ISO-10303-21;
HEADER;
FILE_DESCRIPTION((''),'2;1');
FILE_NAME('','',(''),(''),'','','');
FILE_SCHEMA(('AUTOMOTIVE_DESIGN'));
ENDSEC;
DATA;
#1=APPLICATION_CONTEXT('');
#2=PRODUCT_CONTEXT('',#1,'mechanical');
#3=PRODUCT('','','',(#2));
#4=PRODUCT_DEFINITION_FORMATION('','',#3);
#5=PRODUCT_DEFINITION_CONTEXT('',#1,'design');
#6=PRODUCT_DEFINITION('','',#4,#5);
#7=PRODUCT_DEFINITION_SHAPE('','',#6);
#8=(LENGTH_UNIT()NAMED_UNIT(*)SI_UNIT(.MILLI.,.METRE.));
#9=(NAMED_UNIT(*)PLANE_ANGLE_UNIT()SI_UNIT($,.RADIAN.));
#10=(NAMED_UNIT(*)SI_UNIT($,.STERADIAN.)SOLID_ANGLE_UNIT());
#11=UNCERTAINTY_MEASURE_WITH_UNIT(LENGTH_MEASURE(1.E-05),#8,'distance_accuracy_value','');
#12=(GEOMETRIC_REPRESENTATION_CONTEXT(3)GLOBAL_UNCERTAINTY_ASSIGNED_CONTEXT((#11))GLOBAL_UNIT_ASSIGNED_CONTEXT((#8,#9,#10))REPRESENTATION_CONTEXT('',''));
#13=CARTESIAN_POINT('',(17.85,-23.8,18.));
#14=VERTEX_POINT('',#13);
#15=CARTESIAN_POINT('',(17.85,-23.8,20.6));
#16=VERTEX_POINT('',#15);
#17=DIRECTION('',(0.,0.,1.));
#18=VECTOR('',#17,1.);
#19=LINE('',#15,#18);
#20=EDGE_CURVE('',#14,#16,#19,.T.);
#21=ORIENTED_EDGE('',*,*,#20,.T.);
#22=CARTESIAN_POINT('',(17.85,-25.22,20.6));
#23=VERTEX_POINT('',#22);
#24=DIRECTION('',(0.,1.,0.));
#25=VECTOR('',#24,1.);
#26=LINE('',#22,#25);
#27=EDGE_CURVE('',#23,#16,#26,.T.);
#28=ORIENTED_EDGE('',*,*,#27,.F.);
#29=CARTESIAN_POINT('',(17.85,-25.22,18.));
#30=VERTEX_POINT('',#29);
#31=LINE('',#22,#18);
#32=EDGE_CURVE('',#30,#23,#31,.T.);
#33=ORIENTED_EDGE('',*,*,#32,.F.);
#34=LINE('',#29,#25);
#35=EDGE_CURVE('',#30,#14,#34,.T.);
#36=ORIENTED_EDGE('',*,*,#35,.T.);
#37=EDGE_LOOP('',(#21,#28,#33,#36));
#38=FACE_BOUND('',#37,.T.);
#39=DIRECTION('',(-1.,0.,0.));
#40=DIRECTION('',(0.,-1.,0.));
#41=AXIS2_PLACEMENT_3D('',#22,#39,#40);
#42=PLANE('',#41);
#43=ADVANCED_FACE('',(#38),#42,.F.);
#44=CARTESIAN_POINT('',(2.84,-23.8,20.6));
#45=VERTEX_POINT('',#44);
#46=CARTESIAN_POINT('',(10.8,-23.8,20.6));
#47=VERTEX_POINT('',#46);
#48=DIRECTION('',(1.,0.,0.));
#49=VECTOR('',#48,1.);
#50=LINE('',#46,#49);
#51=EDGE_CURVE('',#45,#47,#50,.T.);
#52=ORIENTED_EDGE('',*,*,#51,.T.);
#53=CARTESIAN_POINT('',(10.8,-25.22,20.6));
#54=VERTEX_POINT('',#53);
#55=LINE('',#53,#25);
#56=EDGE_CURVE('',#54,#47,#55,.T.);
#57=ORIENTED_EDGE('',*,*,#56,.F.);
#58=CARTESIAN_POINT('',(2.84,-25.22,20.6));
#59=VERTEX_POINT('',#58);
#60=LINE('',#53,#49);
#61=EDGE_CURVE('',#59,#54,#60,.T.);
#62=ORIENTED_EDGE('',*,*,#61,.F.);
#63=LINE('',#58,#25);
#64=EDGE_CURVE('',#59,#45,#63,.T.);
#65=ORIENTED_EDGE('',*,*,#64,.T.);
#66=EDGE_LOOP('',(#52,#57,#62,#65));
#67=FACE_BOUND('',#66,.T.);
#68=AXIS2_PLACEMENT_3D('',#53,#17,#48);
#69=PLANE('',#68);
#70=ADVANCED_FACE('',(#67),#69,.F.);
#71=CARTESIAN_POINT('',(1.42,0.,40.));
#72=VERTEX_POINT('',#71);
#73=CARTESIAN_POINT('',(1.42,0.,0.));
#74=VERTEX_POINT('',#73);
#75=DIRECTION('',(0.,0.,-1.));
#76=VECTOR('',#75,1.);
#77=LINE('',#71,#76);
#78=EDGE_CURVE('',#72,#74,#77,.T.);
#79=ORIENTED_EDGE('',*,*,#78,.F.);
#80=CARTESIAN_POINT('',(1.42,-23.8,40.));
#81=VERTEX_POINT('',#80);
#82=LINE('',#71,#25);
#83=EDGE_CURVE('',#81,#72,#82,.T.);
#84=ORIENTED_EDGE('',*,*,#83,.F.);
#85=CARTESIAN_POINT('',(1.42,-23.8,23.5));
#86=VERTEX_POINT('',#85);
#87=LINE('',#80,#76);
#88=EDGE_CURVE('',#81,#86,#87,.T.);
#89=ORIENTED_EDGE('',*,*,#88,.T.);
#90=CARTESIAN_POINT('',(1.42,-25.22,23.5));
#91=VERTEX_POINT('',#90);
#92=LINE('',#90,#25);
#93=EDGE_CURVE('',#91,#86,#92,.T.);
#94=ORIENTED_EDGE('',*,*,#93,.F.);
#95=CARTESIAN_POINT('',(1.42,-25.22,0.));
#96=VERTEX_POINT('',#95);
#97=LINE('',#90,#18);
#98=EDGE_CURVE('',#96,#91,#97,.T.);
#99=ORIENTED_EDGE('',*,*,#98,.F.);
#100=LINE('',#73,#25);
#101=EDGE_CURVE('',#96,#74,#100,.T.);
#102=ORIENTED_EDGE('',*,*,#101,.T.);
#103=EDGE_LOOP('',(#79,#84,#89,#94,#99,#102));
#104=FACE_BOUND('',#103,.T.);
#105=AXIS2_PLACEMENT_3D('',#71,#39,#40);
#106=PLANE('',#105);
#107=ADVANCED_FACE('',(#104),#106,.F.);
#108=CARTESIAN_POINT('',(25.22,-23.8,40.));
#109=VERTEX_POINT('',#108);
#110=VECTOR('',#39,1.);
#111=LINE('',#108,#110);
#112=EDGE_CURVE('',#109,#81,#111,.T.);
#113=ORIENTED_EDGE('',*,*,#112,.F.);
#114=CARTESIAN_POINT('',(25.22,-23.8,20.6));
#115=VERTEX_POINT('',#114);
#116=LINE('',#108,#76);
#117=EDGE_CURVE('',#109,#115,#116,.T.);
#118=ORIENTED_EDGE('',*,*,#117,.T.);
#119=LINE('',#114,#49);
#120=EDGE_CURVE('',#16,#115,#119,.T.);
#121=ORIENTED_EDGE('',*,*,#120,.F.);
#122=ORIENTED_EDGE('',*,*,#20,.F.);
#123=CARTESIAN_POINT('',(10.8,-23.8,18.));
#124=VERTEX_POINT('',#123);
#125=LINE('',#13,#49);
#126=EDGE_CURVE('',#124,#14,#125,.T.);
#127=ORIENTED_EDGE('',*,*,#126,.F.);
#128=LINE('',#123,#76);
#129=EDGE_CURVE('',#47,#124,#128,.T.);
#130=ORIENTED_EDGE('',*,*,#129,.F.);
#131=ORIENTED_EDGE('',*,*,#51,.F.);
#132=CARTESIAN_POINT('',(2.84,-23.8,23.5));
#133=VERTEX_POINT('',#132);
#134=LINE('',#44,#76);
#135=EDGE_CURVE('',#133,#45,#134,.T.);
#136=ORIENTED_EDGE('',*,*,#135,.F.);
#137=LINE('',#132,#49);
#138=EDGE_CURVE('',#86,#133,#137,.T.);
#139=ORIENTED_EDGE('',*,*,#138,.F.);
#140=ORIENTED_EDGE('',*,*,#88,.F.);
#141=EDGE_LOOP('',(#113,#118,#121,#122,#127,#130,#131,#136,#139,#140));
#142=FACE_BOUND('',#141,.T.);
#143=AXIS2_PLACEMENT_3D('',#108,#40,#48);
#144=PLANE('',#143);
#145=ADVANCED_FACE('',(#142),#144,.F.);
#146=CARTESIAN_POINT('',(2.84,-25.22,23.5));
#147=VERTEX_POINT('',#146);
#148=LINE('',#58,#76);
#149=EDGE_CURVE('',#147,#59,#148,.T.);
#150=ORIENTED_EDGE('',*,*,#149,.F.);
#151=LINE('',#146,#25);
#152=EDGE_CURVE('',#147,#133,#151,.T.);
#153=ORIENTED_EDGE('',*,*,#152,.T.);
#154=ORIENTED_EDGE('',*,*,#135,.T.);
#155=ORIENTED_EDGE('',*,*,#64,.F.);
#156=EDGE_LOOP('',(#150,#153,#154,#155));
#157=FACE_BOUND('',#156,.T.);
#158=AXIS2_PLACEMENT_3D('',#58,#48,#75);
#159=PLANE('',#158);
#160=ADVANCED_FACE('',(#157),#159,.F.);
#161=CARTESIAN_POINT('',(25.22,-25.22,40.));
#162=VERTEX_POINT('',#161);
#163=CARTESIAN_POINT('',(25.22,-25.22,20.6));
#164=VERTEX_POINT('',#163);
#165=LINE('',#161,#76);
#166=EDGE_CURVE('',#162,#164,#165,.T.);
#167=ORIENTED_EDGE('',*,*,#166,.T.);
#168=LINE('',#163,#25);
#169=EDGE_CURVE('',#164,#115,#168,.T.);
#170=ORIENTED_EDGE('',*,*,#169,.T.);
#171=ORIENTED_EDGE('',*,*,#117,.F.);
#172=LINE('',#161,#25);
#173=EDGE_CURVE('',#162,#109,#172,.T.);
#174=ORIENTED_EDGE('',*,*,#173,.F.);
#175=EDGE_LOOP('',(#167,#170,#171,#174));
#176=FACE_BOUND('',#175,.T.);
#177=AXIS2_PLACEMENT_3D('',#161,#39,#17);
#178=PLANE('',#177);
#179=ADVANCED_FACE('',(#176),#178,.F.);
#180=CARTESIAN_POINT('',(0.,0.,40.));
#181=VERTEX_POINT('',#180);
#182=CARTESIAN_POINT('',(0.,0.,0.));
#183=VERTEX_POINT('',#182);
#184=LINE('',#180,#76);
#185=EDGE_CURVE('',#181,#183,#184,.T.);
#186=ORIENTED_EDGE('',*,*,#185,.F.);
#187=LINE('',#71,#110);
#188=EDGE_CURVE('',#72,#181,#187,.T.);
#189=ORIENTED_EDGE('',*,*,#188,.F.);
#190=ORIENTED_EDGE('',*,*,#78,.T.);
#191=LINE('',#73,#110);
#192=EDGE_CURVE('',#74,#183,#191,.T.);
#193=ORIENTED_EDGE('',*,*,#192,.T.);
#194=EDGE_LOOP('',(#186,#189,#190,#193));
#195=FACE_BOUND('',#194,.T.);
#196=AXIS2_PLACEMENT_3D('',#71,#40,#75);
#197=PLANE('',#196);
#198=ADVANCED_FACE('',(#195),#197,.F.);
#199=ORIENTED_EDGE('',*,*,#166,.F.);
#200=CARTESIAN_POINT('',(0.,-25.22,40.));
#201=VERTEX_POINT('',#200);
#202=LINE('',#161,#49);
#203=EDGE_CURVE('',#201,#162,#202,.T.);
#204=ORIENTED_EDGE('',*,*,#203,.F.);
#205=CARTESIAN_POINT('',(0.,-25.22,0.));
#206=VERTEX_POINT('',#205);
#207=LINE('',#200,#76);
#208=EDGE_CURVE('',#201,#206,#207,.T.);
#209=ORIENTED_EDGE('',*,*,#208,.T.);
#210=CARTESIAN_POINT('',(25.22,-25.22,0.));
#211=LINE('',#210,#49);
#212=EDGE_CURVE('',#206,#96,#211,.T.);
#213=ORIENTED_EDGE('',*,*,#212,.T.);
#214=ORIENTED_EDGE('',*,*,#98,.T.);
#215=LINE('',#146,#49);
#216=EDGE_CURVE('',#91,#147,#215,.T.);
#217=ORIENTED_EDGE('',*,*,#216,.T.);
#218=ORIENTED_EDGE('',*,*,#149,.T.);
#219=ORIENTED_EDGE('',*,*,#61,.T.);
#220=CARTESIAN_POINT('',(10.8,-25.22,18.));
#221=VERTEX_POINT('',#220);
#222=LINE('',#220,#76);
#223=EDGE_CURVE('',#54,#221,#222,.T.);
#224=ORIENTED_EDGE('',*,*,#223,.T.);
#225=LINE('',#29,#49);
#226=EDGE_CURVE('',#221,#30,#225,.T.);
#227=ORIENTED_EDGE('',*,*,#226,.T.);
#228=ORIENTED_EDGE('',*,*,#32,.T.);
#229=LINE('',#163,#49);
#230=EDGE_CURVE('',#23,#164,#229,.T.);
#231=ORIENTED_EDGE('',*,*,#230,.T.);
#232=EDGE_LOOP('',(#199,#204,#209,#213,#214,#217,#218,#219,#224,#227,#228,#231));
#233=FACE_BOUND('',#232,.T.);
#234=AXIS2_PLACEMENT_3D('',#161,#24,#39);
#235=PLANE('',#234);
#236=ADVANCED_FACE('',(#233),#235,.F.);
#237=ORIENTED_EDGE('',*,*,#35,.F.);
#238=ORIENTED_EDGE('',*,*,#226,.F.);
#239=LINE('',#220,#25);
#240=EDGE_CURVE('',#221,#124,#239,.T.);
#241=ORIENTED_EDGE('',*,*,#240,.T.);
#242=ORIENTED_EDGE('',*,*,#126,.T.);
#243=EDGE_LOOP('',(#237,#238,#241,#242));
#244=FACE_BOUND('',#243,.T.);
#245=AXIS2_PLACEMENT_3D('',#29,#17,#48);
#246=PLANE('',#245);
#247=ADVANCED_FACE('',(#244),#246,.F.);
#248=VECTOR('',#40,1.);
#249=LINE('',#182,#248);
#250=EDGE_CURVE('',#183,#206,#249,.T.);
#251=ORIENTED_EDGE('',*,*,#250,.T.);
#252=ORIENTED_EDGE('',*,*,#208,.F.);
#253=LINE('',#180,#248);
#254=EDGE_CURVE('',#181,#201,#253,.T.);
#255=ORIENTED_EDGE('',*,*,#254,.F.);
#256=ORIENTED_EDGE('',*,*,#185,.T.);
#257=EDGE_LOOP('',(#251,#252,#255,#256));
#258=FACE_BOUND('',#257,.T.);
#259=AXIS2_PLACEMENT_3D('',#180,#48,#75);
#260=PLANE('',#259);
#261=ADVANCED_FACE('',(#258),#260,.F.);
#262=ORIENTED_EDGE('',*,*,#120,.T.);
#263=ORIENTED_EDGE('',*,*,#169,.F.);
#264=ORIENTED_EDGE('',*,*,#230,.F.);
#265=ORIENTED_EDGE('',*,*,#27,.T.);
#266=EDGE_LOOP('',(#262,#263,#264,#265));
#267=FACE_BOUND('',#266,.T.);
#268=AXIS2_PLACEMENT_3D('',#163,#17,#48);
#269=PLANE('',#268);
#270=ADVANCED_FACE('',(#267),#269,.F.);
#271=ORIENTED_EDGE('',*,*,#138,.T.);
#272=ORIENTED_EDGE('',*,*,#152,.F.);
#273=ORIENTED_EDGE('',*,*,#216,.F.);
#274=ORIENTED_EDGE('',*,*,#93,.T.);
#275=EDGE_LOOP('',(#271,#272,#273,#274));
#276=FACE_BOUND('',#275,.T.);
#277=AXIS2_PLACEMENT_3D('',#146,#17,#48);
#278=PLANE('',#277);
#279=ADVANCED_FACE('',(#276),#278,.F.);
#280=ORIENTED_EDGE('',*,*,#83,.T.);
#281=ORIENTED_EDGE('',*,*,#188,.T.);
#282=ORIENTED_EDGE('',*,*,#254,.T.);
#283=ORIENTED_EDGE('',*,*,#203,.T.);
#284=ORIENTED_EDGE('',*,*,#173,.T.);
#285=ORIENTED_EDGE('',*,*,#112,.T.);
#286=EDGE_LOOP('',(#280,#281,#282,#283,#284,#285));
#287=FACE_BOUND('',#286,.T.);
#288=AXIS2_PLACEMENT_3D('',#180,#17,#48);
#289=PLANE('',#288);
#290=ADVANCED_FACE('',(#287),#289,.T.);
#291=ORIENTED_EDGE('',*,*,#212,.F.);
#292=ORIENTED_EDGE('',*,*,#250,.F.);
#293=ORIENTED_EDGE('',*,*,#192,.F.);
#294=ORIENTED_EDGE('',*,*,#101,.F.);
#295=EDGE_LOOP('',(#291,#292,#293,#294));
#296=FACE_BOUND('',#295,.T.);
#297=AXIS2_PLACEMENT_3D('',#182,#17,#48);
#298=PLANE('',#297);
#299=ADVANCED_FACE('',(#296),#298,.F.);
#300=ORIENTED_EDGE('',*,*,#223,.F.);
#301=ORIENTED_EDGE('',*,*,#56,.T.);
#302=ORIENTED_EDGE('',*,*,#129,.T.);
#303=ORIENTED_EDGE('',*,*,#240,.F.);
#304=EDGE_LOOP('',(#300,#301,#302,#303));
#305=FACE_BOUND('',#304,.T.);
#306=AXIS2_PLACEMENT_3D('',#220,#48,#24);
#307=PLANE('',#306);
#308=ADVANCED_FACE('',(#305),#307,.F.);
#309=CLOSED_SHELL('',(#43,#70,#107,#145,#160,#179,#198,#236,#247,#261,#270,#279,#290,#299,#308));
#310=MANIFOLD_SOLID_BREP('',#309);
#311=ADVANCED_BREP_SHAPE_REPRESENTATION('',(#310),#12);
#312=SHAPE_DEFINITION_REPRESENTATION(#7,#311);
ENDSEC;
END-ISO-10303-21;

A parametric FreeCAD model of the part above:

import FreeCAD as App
import Part
import Sketcher
from FreeCAD import Vector
Q = App.Units.Quantity


def add_polygon(sketch, points):
    """Adds a closed chain of lines whose ends are joined by coincident constraints."""
    first, n = sketch.GeometryCount, len(points)
    for a, b in zip(points, points[1:] + points[:1]):
        sketch.addGeometry(Part.LineSegment(App.Vector(*a, 0), App.Vector(*b, 0)), False)
    for i in range(n):
        sketch.addConstraint(Sketcher.Constraint("Coincident", first + i, 2, first + (i + 1) % n, 1))

doc = App.newDocument("Part")
body = doc.addObject("PartDesign::Body", "Body")

sketch1 = doc.addObject("Sketcher::SketchObject", "Sketch")
body.addObject(sketch1)
sketch1.AttachmentSupport = (doc.XY_Plane, [""])
sketch1.MapMode = "FlatFace"
add_polygon(sketch1, [(0, 0), (0, -25.22), (25.22, -25.22), (25.22, -23.8), (1.42, -23.8), (1.42, 0)])
sketch1.addConstraint([
    Sketcher.Constraint("Vertical", 0),
    Sketcher.Constraint("Horizontal", 1),
    Sketcher.Constraint("Vertical", 2),
    Sketcher.Constraint("Horizontal", 3),
    Sketcher.Constraint("Vertical", 4),
    Sketcher.Constraint("Horizontal", 5),
    Sketcher.Constraint("Coincident", 5, 2, -1, 1),
    Sketcher.Constraint("Equal", 1, 0),
    Sketcher.Constraint("Equal", 5, 2),
    Sketcher.Constraint("DistanceX", 3, 2, 3, 1, Q("23.8 mm")),
    Sketcher.Constraint("DistanceX", 1, 1, 1, 2, Q("25.22 mm")),
])
pad1 = doc.addObject("PartDesign::Pad", "Pad")
body.addObject(pad1)
pad1.Profile = sketch1
pad1.Length = 40

sketch2 = doc.addObject("Sketcher::SketchObject", "Sketch001")
body.addObject(sketch2)
sketch2.AttachmentSupport = (doc.XZ_Plane, [""])
sketch2.MapMode = "FlatFace"
sketch2.AttachmentOffset = App.Placement(Vector(0, 0, 23.8), App.Rotation())
add_polygon(sketch2, [(25.22, 20.6), (25.22, 0), (1.42, 0), (1.42, 23.5), (2.84, 23.5), (2.84, 20.6), (10.8, 20.6), (10.8, 18), (17.85, 18), (17.85, 20.6)])
sketch2.addConstraint([
    Sketcher.Constraint("Vertical", 0),
    Sketcher.Constraint("Horizontal", 1),
    Sketcher.Constraint("Vertical", 2),
    Sketcher.Constraint("Horizontal", 3),
    Sketcher.Constraint("Vertical", 4),
    Sketcher.Constraint("Horizontal", 5),
    Sketcher.Constraint("Vertical", 6),
    Sketcher.Constraint("Horizontal", 7),
    Sketcher.Constraint("Vertical", 8),
    Sketcher.Constraint("Horizontal", 9),
    Sketcher.Constraint("PointOnObject", 0, 2, -1),
    Sketcher.Constraint("Horizontal", 5, 2, 8, 2),
    Sketcher.Constraint("DistanceX", 1, 2, 1, 1, Q("23.8 mm")),
    Sketcher.Constraint("DistanceY", 0, 2, 0, 1, Q("20.6 mm")),
    Sketcher.Constraint("DistanceY", 2, 1, 2, 2, Q("23.5 mm")),
    Sketcher.Constraint("DistanceY", 6, 2, 6, 1, Q("2.6 mm")),
    Sketcher.Constraint("DistanceX", 3, 1, 3, 2, Q("1.42 mm")),
    Sketcher.Constraint("DistanceX", 5, 1, 5, 2, Q("7.96 mm")),
    Sketcher.Constraint("DistanceX", 7, 1, 7, 2, Q("7.05 mm")),
    Sketcher.Constraint("DistanceX", -1, 1, 5, 2, Q("10.8 mm")),
])
pocket1 = doc.addObject("PartDesign::Pocket", "Pocket")
body.addObject(pocket1)
pocket1.Profile = sketch2
pocket1.Type = "ThroughAll"
pocket1.Reversed = True

doc.recompute()
